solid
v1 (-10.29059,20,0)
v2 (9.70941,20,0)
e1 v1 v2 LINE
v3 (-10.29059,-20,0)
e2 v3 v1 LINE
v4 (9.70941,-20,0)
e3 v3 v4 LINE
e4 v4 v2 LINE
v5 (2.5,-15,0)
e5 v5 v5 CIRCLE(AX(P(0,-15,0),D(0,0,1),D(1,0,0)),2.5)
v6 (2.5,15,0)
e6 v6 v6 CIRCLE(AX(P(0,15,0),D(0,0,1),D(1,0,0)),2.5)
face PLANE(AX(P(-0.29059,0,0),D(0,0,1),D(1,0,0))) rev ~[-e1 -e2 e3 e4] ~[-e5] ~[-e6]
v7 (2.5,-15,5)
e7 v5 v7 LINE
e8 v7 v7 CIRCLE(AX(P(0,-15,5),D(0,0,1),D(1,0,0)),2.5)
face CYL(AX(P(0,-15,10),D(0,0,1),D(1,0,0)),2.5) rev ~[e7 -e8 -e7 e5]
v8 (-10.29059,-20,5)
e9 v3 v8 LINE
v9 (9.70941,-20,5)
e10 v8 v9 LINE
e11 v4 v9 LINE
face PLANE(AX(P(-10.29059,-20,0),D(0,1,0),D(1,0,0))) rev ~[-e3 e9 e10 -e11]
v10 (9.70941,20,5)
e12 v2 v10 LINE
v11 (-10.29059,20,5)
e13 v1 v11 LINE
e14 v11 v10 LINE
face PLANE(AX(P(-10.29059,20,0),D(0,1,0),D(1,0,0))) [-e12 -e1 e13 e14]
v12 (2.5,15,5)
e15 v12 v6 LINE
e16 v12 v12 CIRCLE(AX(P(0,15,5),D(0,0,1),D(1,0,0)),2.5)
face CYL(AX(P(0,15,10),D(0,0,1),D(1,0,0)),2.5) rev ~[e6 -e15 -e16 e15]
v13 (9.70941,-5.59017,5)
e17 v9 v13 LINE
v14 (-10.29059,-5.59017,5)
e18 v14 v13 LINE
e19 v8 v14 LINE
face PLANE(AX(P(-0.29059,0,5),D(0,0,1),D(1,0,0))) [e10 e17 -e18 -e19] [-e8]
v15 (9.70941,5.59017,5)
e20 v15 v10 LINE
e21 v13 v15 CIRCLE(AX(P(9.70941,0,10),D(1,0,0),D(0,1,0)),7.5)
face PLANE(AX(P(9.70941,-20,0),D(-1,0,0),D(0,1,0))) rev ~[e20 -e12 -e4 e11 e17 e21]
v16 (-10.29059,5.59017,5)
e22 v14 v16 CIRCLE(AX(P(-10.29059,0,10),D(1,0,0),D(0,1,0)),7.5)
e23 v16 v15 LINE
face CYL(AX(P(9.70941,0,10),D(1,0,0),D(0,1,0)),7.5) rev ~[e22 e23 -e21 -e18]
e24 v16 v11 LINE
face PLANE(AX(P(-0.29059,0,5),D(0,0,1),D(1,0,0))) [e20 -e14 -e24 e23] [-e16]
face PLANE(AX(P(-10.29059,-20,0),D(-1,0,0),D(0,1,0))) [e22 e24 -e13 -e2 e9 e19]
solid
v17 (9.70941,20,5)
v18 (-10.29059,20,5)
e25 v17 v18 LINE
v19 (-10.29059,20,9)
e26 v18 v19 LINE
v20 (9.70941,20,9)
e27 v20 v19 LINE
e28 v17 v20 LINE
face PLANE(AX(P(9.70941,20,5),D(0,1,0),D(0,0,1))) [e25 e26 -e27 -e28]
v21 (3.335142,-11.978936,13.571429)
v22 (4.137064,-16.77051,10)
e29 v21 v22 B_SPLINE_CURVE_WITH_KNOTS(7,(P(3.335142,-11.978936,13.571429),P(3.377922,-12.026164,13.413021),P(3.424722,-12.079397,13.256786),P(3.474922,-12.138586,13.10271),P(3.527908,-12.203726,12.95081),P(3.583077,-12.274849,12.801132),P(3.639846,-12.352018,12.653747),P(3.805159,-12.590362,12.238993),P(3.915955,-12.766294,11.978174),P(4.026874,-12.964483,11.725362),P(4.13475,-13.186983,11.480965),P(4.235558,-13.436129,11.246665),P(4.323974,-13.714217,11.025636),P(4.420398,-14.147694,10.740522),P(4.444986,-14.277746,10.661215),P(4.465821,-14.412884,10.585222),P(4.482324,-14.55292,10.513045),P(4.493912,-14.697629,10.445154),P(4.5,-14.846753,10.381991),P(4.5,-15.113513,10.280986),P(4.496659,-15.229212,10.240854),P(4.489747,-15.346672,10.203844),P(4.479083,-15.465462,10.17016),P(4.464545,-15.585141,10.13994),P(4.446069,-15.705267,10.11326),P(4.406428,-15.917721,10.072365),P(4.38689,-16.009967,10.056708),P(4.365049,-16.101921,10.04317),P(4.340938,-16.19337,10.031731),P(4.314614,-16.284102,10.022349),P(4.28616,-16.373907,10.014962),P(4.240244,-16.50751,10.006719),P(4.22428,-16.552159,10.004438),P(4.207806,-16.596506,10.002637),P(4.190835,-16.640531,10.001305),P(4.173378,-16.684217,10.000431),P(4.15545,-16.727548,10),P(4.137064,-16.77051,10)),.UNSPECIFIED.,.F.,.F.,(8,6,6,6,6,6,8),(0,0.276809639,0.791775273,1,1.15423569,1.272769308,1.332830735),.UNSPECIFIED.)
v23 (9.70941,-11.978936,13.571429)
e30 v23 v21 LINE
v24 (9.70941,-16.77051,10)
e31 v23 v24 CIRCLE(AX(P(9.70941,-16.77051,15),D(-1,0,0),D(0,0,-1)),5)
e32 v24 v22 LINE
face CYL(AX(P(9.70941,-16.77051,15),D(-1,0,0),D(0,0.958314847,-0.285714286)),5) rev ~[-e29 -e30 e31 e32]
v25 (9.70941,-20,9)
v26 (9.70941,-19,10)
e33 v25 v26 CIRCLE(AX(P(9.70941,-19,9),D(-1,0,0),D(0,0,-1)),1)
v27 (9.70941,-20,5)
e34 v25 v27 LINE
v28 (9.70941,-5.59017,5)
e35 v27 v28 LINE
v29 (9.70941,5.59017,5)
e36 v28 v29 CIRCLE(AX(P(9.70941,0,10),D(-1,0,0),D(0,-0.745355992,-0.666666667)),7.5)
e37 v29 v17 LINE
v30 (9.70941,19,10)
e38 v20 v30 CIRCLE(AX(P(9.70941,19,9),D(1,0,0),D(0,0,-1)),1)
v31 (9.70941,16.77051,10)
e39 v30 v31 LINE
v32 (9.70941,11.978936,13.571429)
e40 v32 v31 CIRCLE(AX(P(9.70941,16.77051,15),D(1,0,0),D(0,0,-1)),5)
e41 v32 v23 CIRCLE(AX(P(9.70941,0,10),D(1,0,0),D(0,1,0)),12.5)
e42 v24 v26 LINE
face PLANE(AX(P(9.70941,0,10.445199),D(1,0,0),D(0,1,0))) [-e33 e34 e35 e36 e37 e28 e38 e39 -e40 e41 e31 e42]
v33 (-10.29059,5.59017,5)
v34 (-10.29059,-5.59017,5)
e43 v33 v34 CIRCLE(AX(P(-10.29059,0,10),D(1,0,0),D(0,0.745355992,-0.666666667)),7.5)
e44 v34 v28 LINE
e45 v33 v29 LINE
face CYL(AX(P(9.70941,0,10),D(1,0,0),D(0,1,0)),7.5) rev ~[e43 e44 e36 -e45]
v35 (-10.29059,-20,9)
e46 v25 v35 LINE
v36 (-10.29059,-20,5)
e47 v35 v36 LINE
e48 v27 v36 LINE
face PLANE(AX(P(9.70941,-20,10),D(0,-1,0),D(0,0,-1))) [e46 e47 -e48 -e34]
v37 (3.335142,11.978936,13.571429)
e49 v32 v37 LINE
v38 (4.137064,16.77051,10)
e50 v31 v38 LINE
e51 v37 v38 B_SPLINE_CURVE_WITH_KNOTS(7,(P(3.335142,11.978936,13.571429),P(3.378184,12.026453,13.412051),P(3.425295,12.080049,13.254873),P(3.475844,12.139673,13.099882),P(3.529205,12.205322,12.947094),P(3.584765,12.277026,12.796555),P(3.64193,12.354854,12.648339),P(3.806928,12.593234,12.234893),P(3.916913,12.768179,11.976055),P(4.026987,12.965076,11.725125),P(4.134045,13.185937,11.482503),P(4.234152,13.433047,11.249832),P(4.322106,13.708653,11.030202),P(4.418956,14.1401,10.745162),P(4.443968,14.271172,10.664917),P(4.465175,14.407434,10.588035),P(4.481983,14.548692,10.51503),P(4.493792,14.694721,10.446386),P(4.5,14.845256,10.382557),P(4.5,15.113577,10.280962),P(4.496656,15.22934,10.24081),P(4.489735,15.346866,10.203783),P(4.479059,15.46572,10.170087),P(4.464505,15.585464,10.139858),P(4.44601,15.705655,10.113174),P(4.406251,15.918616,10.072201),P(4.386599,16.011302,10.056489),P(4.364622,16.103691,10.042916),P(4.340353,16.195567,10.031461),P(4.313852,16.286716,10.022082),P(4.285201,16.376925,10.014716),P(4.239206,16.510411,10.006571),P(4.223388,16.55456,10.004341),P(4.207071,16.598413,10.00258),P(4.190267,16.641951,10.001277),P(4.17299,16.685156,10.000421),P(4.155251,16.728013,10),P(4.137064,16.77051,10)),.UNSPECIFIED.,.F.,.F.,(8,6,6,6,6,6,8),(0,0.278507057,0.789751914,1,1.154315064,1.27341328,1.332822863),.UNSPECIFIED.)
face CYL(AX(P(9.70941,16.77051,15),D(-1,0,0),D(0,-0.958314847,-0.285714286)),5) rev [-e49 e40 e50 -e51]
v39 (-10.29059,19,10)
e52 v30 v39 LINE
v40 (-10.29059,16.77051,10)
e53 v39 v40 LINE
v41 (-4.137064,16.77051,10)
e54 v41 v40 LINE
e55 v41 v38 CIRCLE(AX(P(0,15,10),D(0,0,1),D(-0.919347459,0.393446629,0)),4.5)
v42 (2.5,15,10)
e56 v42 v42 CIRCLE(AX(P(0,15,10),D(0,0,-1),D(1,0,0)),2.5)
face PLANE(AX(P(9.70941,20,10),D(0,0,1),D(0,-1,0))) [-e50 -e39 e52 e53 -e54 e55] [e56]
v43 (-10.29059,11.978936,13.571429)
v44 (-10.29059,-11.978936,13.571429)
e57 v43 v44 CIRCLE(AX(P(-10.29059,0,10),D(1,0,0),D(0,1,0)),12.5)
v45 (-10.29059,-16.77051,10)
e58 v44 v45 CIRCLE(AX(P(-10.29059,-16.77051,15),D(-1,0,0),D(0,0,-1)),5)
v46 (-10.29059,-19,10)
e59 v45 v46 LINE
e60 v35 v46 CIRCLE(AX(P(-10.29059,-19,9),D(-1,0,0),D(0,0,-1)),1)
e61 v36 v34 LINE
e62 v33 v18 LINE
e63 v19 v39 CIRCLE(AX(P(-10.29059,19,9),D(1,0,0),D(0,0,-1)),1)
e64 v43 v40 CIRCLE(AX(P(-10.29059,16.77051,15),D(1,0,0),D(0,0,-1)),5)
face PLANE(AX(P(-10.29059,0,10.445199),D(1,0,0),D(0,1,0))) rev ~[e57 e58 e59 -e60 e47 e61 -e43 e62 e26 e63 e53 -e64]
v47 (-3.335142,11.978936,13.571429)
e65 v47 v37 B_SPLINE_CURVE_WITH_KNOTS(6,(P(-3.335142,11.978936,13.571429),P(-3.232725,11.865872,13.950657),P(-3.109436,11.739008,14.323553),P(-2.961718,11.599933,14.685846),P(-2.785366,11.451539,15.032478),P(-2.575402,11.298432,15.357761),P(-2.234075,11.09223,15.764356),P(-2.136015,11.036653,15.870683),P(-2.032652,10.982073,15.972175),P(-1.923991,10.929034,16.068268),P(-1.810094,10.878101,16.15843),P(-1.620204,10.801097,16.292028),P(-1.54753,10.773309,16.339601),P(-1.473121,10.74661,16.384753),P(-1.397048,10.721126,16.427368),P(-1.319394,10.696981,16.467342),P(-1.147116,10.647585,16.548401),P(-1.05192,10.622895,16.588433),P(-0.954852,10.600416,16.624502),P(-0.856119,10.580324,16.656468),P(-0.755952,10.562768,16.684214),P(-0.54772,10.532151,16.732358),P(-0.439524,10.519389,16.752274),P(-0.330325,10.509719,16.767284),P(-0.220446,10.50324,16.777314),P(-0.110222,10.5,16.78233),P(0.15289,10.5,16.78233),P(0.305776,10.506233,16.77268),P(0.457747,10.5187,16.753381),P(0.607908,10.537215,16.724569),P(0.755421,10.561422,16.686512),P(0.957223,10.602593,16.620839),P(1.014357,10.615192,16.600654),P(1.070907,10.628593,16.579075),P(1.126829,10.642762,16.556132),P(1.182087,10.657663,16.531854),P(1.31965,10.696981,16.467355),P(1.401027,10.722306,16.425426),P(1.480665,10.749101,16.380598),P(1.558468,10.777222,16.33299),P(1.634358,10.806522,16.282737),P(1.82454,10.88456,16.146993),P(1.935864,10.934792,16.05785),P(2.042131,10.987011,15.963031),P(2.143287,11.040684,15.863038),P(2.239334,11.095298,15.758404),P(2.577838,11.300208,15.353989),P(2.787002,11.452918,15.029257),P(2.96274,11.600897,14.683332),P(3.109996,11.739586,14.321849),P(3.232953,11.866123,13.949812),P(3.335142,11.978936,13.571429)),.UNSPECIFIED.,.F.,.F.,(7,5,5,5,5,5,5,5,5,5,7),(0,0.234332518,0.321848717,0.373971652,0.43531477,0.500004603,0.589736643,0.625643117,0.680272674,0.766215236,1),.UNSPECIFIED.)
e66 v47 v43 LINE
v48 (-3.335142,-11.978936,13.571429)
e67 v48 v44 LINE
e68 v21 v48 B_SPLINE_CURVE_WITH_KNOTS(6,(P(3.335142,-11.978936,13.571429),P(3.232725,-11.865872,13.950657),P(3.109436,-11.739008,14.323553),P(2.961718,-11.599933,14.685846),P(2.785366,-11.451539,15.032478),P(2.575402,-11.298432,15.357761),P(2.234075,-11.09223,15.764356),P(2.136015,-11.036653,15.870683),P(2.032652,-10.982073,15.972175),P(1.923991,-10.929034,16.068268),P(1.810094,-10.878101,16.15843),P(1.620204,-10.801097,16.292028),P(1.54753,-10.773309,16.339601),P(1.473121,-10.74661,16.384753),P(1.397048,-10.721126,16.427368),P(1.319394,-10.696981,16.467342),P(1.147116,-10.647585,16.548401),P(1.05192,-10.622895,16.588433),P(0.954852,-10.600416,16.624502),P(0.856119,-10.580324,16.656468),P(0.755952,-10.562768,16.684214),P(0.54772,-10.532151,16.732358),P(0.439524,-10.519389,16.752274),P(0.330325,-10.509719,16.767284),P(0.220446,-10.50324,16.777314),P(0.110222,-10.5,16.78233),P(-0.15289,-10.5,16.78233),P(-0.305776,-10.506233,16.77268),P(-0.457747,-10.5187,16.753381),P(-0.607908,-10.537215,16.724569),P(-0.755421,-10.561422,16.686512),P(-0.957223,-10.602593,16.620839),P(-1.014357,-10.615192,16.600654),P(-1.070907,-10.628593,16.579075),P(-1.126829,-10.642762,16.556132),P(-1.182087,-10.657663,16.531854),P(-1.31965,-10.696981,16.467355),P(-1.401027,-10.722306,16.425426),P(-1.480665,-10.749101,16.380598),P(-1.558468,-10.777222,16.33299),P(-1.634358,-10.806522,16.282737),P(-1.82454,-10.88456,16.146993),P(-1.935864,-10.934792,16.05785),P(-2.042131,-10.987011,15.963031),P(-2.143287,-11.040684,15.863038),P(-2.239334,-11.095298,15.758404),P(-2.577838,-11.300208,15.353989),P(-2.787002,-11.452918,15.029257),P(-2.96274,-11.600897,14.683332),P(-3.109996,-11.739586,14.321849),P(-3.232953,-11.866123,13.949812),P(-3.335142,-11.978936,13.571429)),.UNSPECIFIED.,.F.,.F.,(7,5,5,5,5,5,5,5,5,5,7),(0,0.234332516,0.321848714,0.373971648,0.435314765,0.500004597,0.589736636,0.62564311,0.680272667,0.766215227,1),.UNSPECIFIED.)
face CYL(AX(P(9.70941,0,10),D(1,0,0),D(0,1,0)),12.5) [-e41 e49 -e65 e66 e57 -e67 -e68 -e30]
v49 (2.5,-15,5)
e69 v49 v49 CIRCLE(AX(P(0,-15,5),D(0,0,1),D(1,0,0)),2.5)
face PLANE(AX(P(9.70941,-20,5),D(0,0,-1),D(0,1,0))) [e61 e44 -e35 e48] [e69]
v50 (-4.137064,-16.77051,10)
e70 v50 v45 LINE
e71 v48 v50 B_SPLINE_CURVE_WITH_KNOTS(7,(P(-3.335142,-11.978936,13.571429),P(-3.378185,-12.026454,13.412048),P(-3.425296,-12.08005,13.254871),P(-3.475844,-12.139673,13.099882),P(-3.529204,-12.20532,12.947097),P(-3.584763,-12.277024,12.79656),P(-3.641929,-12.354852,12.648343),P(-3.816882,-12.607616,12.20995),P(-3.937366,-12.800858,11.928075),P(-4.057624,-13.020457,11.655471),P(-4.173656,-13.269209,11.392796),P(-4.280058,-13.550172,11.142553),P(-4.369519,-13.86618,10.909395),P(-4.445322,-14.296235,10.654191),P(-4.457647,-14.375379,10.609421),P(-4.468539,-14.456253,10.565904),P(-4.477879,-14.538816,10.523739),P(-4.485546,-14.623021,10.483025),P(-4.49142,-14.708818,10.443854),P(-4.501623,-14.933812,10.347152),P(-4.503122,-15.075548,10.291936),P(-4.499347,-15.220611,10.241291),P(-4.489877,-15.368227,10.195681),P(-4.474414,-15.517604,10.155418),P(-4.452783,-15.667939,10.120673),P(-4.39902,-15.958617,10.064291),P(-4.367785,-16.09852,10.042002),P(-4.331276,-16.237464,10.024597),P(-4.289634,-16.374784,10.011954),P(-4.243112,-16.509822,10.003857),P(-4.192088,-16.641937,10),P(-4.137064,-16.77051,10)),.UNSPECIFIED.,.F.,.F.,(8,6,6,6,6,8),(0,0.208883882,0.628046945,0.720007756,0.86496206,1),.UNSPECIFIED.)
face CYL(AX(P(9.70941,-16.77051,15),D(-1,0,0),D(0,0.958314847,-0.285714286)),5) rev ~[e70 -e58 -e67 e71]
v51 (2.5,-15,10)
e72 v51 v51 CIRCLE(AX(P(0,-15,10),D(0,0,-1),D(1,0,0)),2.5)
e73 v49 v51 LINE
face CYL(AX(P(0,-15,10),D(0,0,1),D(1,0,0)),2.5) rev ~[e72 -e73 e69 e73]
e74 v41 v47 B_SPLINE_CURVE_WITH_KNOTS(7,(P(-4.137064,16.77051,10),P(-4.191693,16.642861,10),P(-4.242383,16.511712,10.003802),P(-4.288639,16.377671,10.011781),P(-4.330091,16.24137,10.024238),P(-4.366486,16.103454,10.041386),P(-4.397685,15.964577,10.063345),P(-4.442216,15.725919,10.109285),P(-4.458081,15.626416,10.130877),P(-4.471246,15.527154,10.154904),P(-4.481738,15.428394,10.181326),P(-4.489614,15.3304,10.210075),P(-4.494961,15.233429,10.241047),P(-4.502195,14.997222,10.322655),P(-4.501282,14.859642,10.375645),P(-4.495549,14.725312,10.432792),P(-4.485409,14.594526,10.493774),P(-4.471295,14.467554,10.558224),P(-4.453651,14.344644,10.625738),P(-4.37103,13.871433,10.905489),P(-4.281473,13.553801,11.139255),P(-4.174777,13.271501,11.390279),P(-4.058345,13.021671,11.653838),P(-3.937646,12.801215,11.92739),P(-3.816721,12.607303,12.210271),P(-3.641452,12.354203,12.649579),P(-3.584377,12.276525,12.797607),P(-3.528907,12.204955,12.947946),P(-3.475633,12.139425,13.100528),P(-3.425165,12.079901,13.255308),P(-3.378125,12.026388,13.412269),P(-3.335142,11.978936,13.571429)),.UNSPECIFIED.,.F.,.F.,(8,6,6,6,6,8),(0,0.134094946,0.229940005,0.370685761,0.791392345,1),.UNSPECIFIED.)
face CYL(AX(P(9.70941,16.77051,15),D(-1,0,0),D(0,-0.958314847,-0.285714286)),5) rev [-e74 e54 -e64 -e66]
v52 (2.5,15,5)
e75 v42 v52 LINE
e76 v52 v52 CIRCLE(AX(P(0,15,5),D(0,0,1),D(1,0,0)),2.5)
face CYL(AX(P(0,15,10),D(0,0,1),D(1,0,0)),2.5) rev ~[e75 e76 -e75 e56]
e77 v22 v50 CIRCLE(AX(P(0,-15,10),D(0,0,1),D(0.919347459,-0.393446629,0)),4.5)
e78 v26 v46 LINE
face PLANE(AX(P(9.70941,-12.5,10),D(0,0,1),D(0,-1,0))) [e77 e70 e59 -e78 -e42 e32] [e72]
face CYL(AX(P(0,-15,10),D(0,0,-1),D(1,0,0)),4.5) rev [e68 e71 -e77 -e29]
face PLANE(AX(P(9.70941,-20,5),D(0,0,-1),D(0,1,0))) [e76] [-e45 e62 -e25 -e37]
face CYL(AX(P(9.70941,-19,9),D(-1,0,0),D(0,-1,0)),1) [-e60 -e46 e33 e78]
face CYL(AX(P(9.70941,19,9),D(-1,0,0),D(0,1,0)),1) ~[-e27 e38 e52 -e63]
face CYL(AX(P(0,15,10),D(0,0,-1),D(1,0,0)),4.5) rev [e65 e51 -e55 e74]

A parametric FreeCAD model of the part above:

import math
import FreeCAD as App
import Part
import Sketcher
Q = App.Units.Quantity


def edges_at(feature, points):
    """Names of the edges that pass closest to the given points."""
    edges = feature.Shape.Edges
    near = lambda p: min(range(len(edges)), key=lambda i: edges[i].distToShape(Part.Vertex(*p))[0])
    return sorted({f"Edge{near(p) + 1}" for p in points})

doc = App.newDocument("Part")
body = doc.addObject("PartDesign::Body", "Body")

sketch1 = doc.addObject("Sketcher::SketchObject", "Sketch")
body.addObject(sketch1)
sketch1.AttachmentSupport = (doc.XY_Plane, [""])
sketch1.MapMode = "FlatFace"
sketch1.addGeometry(Part.LineSegment(App.Vector(-10, 20, 0), App.Vector(-10, -20, 0)), False)
sketch1.addGeometry(Part.LineSegment(App.Vector(-10, -20, 0), App.Vector(10, -20, 0)), False)
sketch1.addGeometry(Part.LineSegment(App.Vector(10, -20, 0), App.Vector(10, 20, 0)), False)
sketch1.addGeometry(Part.LineSegment(App.Vector(10, 20, 0), App.Vector(-10, 20, 0)), False)
sketch1.addConstraint(Sketcher.Constraint("Coincident", 0, 2, 1, 1))
sketch1.addConstraint(Sketcher.Constraint("Coincident", 1, 2, 2, 1))
sketch1.addConstraint(Sketcher.Constraint("Coincident", 2, 2, 3, 1))
sketch1.addConstraint(Sketcher.Constraint("Coincident", 3, 2, 0, 1))
sketch1.addConstraint(Sketcher.Constraint("Vertical", 0))
sketch1.addConstraint(Sketcher.Constraint("Horizontal", 1))
sketch1.addConstraint(Sketcher.Constraint("Vertical", 2))
sketch1.addConstraint(Sketcher.Constraint("Horizontal", 3))
sketch1.addConstraint(Sketcher.Constraint("DistanceX", 1, 1, 1, 2, Q("20 mm")))
sketch1.addConstraint(Sketcher.Constraint("DistanceY", 0, 2, 0, 1, Q("40 mm")))
sketch1.addConstraint(Sketcher.Constraint("DistanceY", 0, 2, -1, 1, Q("20 mm")))
sketch1.addConstraint(Sketcher.Constraint("DistanceX", 0, 2, -1, 1, Q("10.29059 mm")))
pad1 = doc.addObject("PartDesign::Pad", "Pad")
body.addObject(pad1)
pad1.Profile = sketch1
pad1.Length = 5
body2 = doc.addObject("PartDesign::Body", "Body001")

sketch2 = doc.addObject("Sketcher::SketchObject", "Sketch001")
body2.addObject(sketch2)
sketch2.AttachmentSupport = (doc.getObject("YZ_Plane001"), [""])
sketch2.MapMode = "FlatFace"
sketch2.AttachmentOffset = App.Placement(App.Vector(0, 0, 9.70941), App.Rotation())
sketch2.addGeometry(Part.LineSegment(App.Vector(-20, 10, 0), App.Vector(-20, 5, 0)), False)
sketch2.addGeometry(Part.LineSegment(App.Vector(-20, 5, 0), App.Vector(20, 5, 0)), False)
sketch2.addGeometry(Part.LineSegment(App.Vector(20, 5, 0), App.Vector(20, 10, 0)), False)
sketch2.addGeometry(Part.LineSegment(App.Vector(20, 10, 0), App.Vector(12, 10, 0)), False)
sketch2.addGeometry(Part.ArcOfCircle(Part.Circle(App.Vector(0, 10, 0), App.Vector(0, 0, 1), 12), math.radians(0), math.radians(180)), False)
sketch2.addGeometry(Part.LineSegment(App.Vector(-12, 10, 0), App.Vector(-20, 10, 0)), False)
sketch2.addConstraint(Sketcher.Constraint("Coincident", 0, 2, 1, 1))
sketch2.addConstraint(Sketcher.Constraint("Coincident", 1, 2, 2, 1))
sketch2.addConstraint(Sketcher.Constraint("Coincident", 2, 2, 3, 1))
sketch2.addConstraint(Sketcher.Constraint("Coincident", 3, 2, 4, 1))
sketch2.addConstraint(Sketcher.Constraint("Coincident", 4, 2, 5, 1))
sketch2.addConstraint(Sketcher.Constraint("Coincident", 5, 2, 0, 1))
sketch2.addConstraint(Sketcher.Constraint("Vertical", 0))
sketch2.addConstraint(Sketcher.Constraint("Horizontal", 1))
sketch2.addConstraint(Sketcher.Constraint("Vertical", 2))
sketch2.addConstraint(Sketcher.Constraint("Horizontal", 3))
sketch2.addConstraint(Sketcher.Constraint("Horizontal", 5))
sketch2.addConstraint(Sketcher.Constraint("Symmetric", 3, 2, 4, 2, -2))
sketch2.addConstraint(Sketcher.Constraint("Horizontal", 4, 3, 2, 2))
sketch2.addConstraint(Sketcher.Constraint("Equal", 3, 5))
sketch2.addConstraint(Sketcher.Constraint("Radius", 4, Q("12.5 mm")))
sketch2.addConstraint(Sketcher.Constraint("DistanceX", 1, 1, 1, 2, Q("40 mm")))
sketch2.addConstraint(Sketcher.Constraint("DistanceY", 0, 2, 0, 1, Q("5 mm")))
sketch2.addConstraint(Sketcher.Constraint("DistanceY", -1, 1, 4, 3, Q("10 mm")))
pad2 = doc.addObject("PartDesign::Pad", "Pad001")
body2.addObject(pad2)
pad2.Profile = sketch2
pad2.Length = 20
pad2.Reversed = True
body3 = doc.addObject("PartDesign::Body", "Body002")

sketch3 = doc.addObject("Sketcher::SketchObject", "Sketch002")
body3.addObject(sketch3)
sketch3.AttachmentSupport = (doc.getObject("YZ_Plane002"), [""])
sketch3.MapMode = "FlatFace"
sketch3.AttachmentOffset = App.Placement(App.Vector(0, 0, 9.70941), App.Rotation())
sketch3.addGeometry(Part.Circle(App.Vector(0, 10, 0), App.Vector(0, 0, 1), 8), False)
sketch3.addConstraint(Sketcher.Constraint("PointOnObject", 0, 3, -2))
sketch3.addConstraint(Sketcher.Constraint("Diameter", 0, Q("15 mm")))
sketch3.addConstraint(Sketcher.Constraint("DistanceY", -1, 1, 0, 3, Q("10 mm")))
pad3 = doc.addObject("PartDesign::Pad", "Pad002")
body3.addObject(pad3)
pad3.Profile = sketch3
pad3.Length = 20
pad3.Reversed = True
doc.recompute()

body4 = doc.addObject("PartDesign::Body", "Body003")
body4.BaseFeature = body3
boolean = doc.addObject("PartDesign::Boolean", "Boolean")
body.addObject(boolean)
boolean.Type = "Cut"
boolean.addObjects([body4])
doc.recompute()

boolean2 = doc.addObject("PartDesign::Boolean", "Boolean001")
body2.addObject(boolean2)
boolean2.Type = "Cut"
boolean2.addObjects([body3])
doc.recompute()

fillet = doc.addObject("PartDesign::Fillet", "Fillet")
body2.addObject(fillet)
fillet.Base = (boolean2, edges_at(boolean2, [(-0.291, 12.5, 10), (-0.291, -12.5, 10)]))
fillet.Radius = 5
body5 = doc.addObject("PartDesign::Body", "Body004")
body5.AllowCompound = True

sketch4 = doc.addObject("Sketcher::SketchObject", "Sketch003")
body5.addObject(sketch4)
sketch4.AttachmentSupport = (doc.getObject("XY_Plane004"), [""])
sketch4.MapMode = "FlatFace"
sketch4.AttachmentOffset = App.Placement(App.Vector(0, 0, 10), App.Rotation())
sketch4.addGeometry(Part.Circle(App.Vector(0, 15, 0), App.Vector(0, 0, 1), 2.5), False)
sketch4.addGeometry(Part.Circle(App.Vector(0, -15, 0), App.Vector(0, 0, 1), 2.5), False)
sketch4.addConstraint(Sketcher.Constraint("Equal", 0, 1))
sketch4.addConstraint(Sketcher.Constraint("Symmetric", 0, 3, 1, 3, -1, 1))
sketch4.addConstraint(Sketcher.Constraint("PointOnObject", 0, 3, -2))
sketch4.addConstraint(Sketcher.Constraint("Diameter", 0, Q("5 mm")))
sketch4.addConstraint(Sketcher.Constraint("DistanceY", -1, 1, 0, 3, Q("15 mm")))
pad4 = doc.addObject("PartDesign::Pad", "Pad003")
body5.addObject(pad4)
pad4.Profile = sketch4
pad4.Length = 25
pad4.Midplane = True
doc.recompute()

body6 = doc.addObject("PartDesign::Body", "Body005")
body6.BaseFeature = body5
boolean3 = doc.addObject("PartDesign::Boolean", "Boolean002")
body.addObject(boolean3)
boolean3.Type = "Cut"
boolean3.addObjects([body6])
doc.recompute()

boolean4 = doc.addObject("PartDesign::Boolean", "Boolean003")
body2.addObject(boolean4)
boolean4.Type = "Cut"
boolean4.addObjects([body5])

sketch5 = doc.addObject("Sketcher::SketchObject", "Sketch004")
body2.addObject(sketch5)
sketch5.AttachmentSupport = (doc.getObject("XY_Plane001"), [""])
sketch5.MapMode = "FlatFace"
sketch5.AttachmentOffset = App.Placement(App.Vector(0, 0, 10), App.Rotation())
sketch5.addGeometry(Part.Circle(App.Vector(0, -15, 0), App.Vector(0, 0, 1), 4.5), False)
sketch5.addGeometry(Part.Circle(App.Vector(0, 15, 0), App.Vector(0, 0, 1), 4.5), False)
sketch5.addConstraint(Sketcher.Constraint("Equal", 0, 1))
sketch5.addConstraint(Sketcher.Constraint("Symmetric", 0, 3, 1, 3, -1, 1))
sketch5.addConstraint(Sketcher.Constraint("PointOnObject", 0, 3, -2))
sketch5.addConstraint(Sketcher.Constraint("Diameter", 0, Q("9 mm")))
sketch5.addConstraint(Sketcher.Constraint("DistanceY", 0, 3, -1, 1, Q("15 mm")))
pocket1 = doc.addObject("PartDesign::Pocket", "Pocket")
body2.addObject(pocket1)
pocket1.Profile = sketch5
pocket1.Length = 8
pocket1.Reversed = True
doc.recompute()

fillet2 = doc.addObject("PartDesign::Fillet", "Fillet001")
body2.addObject(fillet2)
fillet2.Base = (pocket1, edges_at(pocket1, [(-0.291, 20, 10), (-0.291, -20, 10)]))
fillet2.Radius = 1

doc.recompute()
